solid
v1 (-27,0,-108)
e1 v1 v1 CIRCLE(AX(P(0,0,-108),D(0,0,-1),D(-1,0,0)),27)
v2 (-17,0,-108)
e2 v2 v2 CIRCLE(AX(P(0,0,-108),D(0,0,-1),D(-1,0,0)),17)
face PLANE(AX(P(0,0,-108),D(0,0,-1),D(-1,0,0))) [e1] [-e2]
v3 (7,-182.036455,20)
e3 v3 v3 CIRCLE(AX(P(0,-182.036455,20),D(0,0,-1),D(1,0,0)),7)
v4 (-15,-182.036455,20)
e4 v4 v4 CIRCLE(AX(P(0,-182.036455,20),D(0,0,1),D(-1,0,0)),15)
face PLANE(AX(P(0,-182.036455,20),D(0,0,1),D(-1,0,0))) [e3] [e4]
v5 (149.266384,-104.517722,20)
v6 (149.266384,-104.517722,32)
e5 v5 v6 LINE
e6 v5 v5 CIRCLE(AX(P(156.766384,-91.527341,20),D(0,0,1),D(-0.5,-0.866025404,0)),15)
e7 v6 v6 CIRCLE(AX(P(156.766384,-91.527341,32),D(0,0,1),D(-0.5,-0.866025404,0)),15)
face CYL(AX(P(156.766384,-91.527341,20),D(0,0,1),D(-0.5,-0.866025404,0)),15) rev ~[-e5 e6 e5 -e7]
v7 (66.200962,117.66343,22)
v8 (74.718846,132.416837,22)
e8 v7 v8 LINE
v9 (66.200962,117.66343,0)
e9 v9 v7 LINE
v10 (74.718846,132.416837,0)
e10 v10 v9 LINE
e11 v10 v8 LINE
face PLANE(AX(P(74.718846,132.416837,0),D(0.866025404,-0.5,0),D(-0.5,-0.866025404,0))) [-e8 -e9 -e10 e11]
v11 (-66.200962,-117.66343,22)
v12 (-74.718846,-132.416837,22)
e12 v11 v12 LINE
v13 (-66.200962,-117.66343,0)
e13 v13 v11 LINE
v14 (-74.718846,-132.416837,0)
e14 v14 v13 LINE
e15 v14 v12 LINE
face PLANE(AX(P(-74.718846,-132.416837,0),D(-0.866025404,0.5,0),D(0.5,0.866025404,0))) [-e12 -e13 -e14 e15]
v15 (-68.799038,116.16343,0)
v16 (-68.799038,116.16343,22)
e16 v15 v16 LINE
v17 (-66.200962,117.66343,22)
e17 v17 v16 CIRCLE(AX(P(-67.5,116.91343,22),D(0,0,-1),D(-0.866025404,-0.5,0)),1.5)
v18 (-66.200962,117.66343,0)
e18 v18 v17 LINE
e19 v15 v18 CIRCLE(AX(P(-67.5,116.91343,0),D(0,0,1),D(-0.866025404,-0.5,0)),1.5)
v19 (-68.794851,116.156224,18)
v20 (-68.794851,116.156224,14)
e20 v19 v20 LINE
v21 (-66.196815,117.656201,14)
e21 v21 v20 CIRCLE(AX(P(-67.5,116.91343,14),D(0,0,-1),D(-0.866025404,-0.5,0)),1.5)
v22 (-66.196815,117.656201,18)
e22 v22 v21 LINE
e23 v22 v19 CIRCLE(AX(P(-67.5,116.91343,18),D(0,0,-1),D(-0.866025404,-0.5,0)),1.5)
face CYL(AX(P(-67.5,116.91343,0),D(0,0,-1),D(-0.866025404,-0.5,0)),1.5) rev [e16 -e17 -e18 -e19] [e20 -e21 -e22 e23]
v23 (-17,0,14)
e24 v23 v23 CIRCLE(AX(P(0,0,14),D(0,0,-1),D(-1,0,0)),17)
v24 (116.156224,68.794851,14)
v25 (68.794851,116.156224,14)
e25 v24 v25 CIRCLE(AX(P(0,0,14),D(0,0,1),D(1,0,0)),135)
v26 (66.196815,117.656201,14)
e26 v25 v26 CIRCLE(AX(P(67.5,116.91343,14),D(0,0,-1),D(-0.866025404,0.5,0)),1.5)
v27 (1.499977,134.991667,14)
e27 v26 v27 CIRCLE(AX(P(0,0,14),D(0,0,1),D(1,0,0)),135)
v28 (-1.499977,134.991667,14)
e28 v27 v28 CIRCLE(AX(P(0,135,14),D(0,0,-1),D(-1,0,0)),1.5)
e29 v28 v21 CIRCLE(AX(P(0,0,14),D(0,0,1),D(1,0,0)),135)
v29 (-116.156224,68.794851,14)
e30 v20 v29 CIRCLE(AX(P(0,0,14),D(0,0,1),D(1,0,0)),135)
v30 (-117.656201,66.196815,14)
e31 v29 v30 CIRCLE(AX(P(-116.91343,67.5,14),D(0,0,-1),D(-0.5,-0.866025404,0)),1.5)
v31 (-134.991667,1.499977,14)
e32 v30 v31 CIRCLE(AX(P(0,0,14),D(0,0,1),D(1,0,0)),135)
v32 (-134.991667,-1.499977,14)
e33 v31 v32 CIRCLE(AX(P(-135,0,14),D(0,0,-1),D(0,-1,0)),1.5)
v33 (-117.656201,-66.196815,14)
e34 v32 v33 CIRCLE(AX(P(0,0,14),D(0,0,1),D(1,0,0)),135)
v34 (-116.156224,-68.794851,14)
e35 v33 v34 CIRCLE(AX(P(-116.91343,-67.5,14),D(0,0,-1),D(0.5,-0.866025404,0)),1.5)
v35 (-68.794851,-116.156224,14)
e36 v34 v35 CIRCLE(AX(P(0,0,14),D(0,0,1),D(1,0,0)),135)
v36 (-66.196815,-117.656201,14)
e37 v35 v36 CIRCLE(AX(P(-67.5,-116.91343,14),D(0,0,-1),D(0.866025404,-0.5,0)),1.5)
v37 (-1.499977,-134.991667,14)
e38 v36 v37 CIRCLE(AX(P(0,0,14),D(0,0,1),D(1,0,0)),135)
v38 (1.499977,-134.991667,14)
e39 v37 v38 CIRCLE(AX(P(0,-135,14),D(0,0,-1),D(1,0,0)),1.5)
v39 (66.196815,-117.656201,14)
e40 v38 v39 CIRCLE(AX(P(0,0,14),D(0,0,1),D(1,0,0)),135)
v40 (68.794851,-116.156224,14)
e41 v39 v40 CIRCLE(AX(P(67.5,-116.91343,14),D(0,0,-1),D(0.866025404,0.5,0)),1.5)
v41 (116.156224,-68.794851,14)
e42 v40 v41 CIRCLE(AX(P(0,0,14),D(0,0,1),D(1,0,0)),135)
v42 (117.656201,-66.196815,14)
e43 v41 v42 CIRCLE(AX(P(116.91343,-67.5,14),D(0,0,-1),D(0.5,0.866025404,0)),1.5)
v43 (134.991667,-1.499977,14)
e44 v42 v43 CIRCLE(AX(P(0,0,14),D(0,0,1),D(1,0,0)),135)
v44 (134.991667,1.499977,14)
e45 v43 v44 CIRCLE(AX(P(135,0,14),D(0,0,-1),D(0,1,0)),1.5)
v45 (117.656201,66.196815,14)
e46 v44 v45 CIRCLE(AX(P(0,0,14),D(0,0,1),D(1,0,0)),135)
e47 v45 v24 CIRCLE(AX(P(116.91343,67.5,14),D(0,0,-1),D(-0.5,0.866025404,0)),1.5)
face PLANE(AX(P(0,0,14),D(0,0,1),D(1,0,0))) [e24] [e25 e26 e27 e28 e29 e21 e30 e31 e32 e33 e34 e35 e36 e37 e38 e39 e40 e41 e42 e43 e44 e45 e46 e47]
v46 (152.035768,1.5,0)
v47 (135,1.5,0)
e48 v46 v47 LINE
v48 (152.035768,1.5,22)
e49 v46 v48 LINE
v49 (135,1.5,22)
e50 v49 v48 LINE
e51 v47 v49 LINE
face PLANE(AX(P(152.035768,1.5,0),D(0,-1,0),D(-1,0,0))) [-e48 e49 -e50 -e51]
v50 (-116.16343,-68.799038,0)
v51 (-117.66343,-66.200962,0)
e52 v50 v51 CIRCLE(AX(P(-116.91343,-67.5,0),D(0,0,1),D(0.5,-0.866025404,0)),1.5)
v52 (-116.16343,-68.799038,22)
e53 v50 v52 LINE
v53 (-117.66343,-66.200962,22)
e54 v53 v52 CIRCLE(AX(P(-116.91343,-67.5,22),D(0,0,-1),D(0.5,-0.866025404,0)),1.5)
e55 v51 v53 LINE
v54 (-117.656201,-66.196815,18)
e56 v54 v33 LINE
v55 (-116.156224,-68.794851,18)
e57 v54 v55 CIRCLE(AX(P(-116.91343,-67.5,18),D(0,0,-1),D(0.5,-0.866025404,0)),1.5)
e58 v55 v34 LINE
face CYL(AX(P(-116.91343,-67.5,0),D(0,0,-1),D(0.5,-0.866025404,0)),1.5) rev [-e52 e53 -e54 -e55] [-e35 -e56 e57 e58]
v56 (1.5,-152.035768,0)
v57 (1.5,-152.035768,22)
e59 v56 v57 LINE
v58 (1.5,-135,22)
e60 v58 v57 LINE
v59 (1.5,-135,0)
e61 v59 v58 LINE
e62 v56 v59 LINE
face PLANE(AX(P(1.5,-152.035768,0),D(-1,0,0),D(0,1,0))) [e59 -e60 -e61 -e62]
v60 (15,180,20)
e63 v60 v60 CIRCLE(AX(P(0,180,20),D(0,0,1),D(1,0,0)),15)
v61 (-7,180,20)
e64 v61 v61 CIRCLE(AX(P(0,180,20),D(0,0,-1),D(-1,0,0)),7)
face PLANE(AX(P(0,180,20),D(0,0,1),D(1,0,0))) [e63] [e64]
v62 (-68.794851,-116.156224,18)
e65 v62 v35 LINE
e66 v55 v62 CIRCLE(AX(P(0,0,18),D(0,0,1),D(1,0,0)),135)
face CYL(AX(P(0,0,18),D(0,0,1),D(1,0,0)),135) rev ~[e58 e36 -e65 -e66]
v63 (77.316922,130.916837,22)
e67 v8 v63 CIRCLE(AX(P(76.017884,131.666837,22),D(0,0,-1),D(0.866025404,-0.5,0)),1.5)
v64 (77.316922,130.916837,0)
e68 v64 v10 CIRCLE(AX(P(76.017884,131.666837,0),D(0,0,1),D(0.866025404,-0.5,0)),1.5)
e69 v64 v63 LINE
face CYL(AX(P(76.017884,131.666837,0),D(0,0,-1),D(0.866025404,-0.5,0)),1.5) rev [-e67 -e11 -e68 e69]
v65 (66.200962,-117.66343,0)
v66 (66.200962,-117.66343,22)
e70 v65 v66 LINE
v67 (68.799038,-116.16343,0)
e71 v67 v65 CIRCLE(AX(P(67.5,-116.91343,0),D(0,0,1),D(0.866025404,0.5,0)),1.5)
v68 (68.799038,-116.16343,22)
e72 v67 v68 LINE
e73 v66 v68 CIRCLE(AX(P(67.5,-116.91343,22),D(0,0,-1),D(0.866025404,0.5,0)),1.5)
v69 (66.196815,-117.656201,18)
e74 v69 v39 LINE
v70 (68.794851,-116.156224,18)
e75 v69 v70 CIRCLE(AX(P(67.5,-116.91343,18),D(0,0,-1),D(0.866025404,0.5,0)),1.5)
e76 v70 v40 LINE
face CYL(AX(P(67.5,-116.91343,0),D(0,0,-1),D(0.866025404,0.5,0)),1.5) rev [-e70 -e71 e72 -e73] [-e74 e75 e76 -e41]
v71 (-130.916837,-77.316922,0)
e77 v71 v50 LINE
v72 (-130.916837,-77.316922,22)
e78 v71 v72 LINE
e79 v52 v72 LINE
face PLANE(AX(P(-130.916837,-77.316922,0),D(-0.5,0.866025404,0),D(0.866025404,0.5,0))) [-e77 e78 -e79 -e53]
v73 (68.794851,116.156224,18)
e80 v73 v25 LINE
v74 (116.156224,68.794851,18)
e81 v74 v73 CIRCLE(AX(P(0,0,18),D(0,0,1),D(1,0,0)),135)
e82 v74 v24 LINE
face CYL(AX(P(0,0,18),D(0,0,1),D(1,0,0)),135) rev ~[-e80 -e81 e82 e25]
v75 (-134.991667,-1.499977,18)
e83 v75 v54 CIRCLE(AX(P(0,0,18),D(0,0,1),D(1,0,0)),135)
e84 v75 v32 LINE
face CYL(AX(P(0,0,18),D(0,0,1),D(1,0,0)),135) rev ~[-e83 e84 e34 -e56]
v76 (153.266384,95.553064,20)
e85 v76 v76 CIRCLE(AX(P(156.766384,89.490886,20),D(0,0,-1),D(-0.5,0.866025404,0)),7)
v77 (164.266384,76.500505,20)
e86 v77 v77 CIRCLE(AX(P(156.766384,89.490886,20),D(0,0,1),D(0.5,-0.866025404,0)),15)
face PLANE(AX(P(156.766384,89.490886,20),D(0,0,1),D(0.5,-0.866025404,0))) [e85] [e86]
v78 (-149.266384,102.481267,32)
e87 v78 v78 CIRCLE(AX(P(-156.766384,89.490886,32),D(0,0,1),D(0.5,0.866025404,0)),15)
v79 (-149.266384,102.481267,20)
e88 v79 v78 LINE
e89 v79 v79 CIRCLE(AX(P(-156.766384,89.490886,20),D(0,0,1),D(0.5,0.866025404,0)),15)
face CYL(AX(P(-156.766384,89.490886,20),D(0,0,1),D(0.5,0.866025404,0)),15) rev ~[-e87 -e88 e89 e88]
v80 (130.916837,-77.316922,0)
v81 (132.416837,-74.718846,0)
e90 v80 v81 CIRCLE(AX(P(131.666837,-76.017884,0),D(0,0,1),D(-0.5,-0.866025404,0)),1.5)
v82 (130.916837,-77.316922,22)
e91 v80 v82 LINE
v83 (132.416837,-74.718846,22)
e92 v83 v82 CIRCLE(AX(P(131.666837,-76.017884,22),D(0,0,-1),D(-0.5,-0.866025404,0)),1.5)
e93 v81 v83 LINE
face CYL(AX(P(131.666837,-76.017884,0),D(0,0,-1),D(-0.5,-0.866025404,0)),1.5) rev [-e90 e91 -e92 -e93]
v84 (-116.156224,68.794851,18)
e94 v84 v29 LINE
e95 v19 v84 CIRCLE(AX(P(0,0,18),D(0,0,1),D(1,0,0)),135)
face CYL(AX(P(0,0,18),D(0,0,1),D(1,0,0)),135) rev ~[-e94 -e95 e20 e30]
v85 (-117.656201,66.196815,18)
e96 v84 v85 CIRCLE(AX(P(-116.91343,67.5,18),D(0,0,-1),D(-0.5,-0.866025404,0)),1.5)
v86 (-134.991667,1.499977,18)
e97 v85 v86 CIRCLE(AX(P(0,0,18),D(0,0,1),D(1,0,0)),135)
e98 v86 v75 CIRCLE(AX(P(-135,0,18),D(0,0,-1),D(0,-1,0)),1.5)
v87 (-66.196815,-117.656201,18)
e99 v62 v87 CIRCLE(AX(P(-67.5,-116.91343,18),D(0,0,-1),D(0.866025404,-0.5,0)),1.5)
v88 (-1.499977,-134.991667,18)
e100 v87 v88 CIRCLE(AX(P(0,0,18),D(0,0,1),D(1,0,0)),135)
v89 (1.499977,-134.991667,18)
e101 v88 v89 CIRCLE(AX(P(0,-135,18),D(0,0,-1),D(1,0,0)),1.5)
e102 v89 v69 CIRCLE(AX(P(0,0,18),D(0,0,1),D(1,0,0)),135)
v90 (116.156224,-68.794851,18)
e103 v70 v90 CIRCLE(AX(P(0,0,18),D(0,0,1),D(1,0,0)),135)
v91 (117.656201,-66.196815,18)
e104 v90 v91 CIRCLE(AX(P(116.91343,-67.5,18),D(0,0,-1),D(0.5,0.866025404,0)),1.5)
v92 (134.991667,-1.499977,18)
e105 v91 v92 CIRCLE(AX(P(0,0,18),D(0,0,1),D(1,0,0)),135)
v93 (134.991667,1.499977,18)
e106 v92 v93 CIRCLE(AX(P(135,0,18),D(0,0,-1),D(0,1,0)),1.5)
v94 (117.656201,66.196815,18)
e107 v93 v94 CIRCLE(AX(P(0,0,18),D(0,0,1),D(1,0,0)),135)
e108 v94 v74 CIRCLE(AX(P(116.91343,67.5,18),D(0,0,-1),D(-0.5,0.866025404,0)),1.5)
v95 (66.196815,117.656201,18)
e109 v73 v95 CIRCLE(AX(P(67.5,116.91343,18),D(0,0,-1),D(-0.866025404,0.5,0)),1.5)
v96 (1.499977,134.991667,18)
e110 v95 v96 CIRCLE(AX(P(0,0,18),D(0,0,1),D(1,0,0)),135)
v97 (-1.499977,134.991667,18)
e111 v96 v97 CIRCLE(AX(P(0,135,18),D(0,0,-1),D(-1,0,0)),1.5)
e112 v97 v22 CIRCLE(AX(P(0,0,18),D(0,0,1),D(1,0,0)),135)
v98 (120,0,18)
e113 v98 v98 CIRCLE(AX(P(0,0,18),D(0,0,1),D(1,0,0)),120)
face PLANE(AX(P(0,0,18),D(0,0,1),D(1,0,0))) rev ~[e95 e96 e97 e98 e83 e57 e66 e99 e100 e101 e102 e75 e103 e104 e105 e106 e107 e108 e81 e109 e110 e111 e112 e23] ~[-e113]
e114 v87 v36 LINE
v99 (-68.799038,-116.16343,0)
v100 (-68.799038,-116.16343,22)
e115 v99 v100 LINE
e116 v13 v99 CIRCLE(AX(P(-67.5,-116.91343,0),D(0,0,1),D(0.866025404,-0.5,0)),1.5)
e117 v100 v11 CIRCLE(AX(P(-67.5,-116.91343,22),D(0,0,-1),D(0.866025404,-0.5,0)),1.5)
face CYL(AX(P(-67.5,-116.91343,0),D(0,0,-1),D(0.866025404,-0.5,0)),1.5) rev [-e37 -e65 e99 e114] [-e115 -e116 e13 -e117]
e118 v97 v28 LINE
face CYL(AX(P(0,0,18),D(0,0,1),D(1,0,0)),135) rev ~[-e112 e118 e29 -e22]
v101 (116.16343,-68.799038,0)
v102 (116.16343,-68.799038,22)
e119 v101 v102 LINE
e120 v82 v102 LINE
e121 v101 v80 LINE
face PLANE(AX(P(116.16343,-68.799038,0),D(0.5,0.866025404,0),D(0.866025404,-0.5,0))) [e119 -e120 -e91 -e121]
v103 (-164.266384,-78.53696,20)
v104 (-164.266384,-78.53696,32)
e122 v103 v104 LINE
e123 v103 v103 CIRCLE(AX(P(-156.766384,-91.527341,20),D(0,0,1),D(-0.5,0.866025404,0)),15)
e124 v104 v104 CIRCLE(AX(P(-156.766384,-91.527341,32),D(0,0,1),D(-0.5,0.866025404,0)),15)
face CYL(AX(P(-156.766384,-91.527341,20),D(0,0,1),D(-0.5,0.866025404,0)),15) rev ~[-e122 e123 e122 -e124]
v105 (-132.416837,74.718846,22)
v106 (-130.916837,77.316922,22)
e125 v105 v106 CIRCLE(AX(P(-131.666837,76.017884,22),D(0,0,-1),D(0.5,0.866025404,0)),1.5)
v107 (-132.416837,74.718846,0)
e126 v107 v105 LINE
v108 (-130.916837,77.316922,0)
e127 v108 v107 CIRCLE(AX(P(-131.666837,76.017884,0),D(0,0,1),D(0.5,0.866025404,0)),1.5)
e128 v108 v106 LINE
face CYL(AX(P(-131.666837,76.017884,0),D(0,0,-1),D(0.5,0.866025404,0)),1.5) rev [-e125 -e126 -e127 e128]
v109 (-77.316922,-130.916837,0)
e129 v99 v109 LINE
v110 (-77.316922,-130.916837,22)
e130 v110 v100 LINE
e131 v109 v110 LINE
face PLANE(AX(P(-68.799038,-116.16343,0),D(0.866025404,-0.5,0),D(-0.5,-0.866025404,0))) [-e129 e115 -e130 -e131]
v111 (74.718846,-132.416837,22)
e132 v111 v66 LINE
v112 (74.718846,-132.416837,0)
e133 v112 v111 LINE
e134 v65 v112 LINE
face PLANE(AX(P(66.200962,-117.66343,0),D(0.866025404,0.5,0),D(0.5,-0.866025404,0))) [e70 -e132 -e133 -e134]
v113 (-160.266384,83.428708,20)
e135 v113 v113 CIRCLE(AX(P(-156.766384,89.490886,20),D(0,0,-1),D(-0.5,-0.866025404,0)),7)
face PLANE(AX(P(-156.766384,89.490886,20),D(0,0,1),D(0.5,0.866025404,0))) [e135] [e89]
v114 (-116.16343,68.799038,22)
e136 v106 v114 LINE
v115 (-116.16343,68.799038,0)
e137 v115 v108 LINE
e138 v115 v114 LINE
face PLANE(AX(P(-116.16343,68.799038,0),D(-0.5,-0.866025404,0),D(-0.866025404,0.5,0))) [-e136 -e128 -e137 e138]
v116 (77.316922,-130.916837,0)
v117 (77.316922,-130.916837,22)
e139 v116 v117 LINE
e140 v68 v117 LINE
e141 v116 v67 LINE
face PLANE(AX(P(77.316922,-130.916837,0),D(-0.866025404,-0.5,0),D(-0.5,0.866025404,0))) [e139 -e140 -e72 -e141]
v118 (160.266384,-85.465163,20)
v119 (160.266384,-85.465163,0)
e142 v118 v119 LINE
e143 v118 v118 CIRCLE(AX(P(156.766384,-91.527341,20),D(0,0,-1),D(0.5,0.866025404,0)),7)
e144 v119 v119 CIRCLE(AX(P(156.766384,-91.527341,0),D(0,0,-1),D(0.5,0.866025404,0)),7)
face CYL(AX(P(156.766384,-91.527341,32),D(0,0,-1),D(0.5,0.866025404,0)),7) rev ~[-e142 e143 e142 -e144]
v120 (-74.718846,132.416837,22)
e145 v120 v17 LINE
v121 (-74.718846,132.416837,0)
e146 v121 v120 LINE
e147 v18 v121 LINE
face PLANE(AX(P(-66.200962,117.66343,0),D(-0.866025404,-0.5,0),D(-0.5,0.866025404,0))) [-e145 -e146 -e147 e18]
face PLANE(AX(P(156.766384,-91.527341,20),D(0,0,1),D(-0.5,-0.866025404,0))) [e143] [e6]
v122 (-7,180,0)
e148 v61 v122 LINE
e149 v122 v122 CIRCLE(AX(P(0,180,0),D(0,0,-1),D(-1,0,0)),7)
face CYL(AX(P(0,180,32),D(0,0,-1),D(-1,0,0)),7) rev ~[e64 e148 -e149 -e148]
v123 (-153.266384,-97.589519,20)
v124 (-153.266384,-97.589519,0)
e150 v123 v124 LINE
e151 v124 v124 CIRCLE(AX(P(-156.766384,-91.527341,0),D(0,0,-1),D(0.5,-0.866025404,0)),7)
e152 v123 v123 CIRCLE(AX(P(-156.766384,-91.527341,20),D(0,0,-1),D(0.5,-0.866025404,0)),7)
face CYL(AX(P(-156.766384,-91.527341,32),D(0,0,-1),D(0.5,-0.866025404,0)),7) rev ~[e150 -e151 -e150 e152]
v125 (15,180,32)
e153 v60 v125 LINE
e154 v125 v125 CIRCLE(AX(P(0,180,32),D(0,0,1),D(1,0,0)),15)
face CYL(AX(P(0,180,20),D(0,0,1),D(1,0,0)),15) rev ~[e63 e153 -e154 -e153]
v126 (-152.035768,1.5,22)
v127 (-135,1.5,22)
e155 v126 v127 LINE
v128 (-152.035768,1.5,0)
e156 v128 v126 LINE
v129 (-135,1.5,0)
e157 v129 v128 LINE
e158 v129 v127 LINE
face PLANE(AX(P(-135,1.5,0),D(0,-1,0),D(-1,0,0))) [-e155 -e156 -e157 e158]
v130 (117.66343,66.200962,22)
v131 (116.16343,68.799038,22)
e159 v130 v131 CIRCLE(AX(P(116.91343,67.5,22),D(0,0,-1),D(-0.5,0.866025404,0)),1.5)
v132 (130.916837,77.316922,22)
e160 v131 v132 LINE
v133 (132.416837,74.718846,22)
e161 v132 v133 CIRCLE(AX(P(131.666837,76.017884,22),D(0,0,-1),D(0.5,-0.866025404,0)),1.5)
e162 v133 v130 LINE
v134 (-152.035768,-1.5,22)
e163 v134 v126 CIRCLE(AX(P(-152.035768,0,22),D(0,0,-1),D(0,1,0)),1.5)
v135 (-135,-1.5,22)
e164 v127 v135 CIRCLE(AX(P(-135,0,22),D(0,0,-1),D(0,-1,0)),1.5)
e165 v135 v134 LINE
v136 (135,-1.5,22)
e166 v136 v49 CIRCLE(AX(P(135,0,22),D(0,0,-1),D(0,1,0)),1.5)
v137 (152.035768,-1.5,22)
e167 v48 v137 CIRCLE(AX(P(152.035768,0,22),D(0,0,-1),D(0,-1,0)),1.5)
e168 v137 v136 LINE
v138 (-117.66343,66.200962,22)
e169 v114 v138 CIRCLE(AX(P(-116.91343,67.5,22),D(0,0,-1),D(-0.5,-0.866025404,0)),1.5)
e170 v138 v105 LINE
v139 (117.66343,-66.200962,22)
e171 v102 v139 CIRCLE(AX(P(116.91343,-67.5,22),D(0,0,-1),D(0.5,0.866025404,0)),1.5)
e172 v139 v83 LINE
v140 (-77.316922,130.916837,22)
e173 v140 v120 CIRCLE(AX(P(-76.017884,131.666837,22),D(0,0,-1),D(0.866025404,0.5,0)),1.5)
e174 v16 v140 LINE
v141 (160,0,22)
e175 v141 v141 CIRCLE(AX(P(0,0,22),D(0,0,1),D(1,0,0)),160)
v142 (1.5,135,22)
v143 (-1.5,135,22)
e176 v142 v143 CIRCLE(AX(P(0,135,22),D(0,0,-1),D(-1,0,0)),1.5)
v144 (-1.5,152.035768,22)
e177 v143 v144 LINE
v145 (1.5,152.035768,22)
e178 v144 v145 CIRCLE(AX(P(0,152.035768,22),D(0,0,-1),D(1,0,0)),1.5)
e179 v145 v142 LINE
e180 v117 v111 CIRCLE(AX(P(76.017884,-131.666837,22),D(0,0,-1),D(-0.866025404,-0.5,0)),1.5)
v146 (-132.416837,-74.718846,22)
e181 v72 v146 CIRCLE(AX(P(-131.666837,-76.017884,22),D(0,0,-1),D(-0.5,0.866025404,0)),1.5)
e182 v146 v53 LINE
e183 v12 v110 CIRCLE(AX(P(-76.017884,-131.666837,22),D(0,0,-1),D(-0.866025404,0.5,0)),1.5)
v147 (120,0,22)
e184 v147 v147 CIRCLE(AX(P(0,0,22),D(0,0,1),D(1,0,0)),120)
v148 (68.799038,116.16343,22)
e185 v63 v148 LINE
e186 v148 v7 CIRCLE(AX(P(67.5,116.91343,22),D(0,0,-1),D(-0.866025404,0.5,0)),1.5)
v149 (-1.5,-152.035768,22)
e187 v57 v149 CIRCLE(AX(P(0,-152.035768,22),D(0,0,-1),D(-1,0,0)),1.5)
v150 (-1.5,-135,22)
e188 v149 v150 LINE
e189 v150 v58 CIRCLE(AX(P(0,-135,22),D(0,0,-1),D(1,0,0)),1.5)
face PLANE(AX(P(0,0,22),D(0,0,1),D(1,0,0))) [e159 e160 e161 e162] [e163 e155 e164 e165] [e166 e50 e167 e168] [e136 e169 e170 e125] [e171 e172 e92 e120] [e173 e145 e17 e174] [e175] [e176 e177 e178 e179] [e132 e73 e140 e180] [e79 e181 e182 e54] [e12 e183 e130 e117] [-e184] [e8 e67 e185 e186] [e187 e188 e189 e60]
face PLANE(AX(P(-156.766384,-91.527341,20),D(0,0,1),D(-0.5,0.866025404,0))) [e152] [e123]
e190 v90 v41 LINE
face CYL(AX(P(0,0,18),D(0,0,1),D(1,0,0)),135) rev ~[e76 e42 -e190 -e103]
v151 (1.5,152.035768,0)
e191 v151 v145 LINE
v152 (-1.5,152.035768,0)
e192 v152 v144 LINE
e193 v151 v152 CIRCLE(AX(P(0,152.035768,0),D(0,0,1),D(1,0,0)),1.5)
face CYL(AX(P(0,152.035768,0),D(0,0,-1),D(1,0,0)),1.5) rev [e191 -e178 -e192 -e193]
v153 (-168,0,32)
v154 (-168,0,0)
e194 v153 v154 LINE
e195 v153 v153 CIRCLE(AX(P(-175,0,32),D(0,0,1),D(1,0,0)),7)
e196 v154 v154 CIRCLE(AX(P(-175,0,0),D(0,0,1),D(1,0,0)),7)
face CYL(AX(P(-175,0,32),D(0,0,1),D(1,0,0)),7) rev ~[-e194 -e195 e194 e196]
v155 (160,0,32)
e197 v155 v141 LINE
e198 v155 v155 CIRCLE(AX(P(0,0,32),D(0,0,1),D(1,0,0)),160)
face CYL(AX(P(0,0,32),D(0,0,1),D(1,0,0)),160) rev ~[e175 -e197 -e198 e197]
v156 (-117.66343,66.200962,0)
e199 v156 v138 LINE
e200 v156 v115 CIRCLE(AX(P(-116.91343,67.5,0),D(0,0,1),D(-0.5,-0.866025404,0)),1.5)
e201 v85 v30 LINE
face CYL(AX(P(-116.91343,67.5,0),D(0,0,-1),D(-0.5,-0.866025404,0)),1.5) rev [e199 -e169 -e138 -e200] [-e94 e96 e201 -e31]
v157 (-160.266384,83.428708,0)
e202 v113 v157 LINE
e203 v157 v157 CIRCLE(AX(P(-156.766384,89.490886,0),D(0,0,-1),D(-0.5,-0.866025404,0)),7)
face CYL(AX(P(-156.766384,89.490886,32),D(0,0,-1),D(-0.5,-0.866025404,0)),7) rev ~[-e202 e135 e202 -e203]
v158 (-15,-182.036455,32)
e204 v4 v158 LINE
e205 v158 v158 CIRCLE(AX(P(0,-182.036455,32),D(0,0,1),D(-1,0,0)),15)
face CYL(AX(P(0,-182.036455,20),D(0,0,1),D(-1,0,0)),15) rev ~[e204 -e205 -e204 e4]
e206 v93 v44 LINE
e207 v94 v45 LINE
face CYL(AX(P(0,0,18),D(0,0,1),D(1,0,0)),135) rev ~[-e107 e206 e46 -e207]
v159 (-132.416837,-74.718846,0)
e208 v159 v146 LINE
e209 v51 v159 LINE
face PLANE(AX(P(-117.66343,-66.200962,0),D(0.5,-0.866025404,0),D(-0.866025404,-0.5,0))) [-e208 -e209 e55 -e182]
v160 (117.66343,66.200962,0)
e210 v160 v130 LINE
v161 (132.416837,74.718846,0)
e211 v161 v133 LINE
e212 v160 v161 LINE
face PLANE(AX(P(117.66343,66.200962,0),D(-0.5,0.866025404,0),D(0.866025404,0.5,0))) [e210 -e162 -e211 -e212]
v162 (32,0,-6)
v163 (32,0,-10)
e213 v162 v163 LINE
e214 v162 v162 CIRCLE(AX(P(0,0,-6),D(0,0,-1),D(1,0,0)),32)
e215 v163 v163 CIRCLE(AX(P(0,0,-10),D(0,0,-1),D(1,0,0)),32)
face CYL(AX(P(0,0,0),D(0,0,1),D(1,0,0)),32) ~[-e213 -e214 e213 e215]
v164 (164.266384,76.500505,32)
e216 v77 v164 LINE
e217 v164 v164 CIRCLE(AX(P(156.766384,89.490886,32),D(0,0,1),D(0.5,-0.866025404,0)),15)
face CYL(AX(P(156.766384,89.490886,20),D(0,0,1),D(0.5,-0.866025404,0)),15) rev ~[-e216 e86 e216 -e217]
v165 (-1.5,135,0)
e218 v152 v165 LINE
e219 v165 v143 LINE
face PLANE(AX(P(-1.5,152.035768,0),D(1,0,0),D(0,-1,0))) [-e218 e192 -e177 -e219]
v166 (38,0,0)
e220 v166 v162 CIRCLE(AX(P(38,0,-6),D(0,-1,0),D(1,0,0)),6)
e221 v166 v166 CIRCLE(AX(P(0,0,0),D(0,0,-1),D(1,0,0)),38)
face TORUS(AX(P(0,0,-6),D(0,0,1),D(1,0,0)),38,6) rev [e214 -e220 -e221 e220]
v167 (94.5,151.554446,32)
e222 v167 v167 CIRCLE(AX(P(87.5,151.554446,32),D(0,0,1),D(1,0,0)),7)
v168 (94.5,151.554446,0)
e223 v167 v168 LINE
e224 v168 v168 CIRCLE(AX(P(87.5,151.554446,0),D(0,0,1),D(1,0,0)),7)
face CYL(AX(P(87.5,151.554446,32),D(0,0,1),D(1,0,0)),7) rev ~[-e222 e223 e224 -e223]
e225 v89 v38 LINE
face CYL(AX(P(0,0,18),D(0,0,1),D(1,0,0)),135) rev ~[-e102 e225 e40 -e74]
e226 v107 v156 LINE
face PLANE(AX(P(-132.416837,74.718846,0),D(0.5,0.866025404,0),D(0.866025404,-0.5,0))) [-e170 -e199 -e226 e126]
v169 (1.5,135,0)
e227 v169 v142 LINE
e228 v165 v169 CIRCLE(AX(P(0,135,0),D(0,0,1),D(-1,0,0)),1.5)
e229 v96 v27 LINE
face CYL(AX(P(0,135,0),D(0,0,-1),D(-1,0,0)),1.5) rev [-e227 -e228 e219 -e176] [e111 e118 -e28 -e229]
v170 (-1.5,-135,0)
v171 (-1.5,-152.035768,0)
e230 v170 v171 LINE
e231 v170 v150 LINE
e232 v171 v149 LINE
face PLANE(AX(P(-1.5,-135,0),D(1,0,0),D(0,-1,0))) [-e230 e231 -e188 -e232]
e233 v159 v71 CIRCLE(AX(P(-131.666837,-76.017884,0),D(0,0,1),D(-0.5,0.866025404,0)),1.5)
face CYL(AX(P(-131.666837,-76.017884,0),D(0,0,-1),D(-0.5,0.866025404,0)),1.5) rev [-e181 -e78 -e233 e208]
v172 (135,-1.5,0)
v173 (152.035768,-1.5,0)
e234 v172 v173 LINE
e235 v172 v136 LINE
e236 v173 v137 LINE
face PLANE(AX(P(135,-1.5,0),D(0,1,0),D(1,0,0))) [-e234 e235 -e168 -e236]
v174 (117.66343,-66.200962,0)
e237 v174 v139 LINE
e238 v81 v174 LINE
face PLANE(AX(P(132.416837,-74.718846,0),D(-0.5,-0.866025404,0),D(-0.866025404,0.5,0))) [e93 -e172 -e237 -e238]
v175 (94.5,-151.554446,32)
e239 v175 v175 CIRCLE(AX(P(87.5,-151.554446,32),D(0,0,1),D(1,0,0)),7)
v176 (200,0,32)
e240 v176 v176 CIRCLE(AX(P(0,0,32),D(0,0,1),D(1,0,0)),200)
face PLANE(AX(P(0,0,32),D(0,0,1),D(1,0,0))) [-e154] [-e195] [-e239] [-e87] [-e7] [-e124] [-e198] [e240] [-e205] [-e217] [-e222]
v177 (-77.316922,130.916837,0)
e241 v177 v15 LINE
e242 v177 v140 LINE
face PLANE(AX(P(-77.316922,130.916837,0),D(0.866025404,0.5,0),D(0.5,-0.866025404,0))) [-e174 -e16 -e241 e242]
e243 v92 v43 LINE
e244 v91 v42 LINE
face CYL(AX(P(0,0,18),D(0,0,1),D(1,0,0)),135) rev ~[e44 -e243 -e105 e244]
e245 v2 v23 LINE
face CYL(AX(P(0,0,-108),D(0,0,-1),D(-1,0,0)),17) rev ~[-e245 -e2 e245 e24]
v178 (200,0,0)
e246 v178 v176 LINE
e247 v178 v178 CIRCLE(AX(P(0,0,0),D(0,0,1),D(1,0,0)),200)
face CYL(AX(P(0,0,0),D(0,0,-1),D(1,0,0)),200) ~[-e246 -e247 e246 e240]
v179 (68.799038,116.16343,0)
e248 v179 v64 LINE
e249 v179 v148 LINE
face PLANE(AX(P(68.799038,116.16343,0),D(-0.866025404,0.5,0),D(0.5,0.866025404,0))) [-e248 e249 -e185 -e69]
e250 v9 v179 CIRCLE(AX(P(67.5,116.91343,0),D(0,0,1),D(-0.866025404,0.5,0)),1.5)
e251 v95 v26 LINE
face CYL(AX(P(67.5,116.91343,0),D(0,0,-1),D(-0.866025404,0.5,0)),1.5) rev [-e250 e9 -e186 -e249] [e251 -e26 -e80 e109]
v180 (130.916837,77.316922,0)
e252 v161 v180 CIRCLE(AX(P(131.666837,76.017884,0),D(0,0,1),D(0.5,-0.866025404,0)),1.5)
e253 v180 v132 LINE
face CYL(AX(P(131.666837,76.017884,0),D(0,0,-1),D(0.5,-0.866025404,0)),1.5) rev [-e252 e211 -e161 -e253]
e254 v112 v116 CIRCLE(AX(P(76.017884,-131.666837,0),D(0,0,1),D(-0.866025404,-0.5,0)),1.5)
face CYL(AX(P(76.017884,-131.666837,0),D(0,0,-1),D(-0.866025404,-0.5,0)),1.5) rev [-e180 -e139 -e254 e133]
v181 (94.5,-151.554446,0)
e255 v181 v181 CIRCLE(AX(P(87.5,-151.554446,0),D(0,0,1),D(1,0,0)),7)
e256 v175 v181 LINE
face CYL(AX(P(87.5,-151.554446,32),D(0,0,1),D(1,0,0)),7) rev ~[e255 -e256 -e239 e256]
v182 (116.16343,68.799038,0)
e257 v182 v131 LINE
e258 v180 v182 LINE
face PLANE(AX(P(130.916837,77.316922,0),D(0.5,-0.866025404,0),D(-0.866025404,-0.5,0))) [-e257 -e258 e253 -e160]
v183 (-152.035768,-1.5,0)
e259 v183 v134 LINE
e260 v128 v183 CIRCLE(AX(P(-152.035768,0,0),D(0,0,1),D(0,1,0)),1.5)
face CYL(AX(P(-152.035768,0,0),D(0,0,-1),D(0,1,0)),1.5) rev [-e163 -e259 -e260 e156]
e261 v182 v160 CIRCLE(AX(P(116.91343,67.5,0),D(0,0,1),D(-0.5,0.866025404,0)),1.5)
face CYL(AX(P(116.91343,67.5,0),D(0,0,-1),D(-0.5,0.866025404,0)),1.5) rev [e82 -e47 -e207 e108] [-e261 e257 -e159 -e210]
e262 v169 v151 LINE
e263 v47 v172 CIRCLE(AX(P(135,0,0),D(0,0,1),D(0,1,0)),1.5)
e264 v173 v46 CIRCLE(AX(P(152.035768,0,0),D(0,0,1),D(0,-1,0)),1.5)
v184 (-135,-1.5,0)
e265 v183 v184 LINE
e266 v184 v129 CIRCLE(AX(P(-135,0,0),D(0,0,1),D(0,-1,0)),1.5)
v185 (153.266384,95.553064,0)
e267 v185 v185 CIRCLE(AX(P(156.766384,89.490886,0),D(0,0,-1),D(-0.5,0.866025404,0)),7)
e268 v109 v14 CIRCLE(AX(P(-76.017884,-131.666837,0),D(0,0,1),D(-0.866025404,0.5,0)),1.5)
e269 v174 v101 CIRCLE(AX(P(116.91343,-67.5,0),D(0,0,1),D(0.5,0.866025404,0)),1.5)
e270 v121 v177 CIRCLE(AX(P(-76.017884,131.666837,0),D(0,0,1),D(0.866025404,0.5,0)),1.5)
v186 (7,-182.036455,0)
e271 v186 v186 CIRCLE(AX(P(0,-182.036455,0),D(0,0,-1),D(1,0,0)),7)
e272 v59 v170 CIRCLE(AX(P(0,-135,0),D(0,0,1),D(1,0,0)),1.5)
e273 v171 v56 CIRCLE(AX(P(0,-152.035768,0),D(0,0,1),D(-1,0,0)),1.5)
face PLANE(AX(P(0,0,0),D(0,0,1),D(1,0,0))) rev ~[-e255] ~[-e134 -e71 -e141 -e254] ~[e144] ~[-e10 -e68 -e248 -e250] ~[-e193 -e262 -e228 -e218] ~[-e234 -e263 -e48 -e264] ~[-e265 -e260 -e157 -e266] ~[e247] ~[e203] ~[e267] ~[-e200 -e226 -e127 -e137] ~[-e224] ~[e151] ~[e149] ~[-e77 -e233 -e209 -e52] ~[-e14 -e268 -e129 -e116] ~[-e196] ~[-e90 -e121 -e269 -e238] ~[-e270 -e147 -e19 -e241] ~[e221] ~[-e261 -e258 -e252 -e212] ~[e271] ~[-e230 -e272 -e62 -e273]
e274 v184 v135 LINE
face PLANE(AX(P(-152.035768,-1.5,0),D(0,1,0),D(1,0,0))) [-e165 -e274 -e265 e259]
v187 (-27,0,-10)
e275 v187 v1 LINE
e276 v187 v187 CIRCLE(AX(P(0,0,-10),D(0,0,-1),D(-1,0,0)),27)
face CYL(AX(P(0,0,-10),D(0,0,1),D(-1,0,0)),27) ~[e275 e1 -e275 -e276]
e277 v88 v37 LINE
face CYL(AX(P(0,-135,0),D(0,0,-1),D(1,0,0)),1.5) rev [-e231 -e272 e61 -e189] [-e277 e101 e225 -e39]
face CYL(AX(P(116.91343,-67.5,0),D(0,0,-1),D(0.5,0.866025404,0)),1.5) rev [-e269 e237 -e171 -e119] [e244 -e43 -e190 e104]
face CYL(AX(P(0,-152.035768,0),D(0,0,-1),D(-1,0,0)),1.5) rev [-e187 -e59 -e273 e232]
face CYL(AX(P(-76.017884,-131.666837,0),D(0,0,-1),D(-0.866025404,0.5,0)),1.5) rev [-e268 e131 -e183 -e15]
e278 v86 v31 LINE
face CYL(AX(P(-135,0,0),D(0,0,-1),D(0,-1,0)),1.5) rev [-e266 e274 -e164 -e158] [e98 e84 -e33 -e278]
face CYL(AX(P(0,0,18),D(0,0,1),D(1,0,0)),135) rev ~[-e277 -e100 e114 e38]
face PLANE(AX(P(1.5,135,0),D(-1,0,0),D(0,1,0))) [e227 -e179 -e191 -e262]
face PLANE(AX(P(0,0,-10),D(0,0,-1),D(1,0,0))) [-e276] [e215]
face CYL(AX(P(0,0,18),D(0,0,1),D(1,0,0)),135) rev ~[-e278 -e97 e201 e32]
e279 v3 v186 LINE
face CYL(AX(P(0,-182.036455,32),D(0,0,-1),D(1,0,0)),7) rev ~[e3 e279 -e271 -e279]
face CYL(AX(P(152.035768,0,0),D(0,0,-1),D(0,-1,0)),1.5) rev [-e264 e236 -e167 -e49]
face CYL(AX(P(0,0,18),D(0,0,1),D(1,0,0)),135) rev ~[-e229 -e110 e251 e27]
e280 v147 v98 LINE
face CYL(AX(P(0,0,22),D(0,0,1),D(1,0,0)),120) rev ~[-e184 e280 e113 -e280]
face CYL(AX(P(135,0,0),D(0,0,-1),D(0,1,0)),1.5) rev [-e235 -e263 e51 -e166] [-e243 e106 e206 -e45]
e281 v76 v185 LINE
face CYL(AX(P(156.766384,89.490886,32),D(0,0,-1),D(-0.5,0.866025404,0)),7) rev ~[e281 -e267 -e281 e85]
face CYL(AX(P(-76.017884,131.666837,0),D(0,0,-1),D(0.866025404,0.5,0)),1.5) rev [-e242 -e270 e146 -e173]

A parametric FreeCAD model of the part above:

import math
import FreeCAD as App
import Part
import Sketcher
Q = App.Units.Quantity


def edges_at(feature, points):
    """Names of the edges that pass closest to the given points."""
    edges = feature.Shape.Edges
    near = lambda p: min(range(len(edges)), key=lambda i: edges[i].distToShape(Part.Vertex(*p))[0])
    return sorted({f"Edge{near(p) + 1}" for p in points})

doc = App.newDocument("Part")
body = doc.addObject("PartDesign::Body", "Body")

sketch1 = body.newObject("Sketcher::SketchObject", "Sketch")
sketch1.AttachmentSupport = (doc.getObject("XY_Plane"), [""])
sketch1.MapMode = "FlatFace"
sketch1.addGeometry(Part.Circle(App.Vector(0, 0, 0), App.Vector(0, 0, 1), 200), False)
sketch1.addConstraint(Sketcher.Constraint("Coincident", 0, 3, -1, 1))
sketch1.addConstraint(Sketcher.Constraint("Diameter", 0, Q("400 mm")))
pad1 = body.newObject("PartDesign::Pad", "Pad")
pad1.Profile = sketch1
pad1.Length = 32

sketch2 = body.newObject("Sketcher::SketchObject", "Sketch001")
sketch2.AttachmentSupport = (doc.getObject("XY_Plane"), [""])
sketch2.MapMode = "FlatFace"
sketch2.AttachmentOffset = App.Placement(App.Vector(0, 0, 32), App.Rotation())
sketch2.addGeometry(Part.Circle(App.Vector(0, 180, 0), App.Vector(0, 0, 1), 7), False)
sketch2.addConstraint(Sketcher.Constraint("PointOnObject", 0, 3, -2))
sketch2.addConstraint(Sketcher.Constraint("Diameter", 0, Q("14 mm")))
sketch2.addConstraint(Sketcher.Constraint("DistanceY", -1, 1, 0, 3, Q("180 mm")))
doc.recompute()
hole = body.newObject("PartDesign::Hole", "Hole")
hole.Profile = sketch2
hole.ThreadType = "None"
hole.Diameter = 14
hole.DepthType = "ThroughAll"
hole.HoleCutType = "Counterbore"
hole.HoleCutDiameter = 30
hole.HoleCutDepth = 12
doc.recompute()

datumline = body.newObject("PartDesign::Line", "DatumLine")
datumline.Placement = App.Placement(App.Vector(0, -1.018228, 0), App.Rotation(App.Vector(0, 0, 1), App.Vector(0, 0, 1)))
polarpattern = body.newObject("PartDesign::PolarPattern", "PolarPattern")
polarpattern.Originals = [hole]
polarpattern.Axis = (datumline, [""])
polarpattern.Angle = 360
polarpattern.Occurrences = 6
body.Tip = polarpattern

sketch3 = body.newObject("Sketcher::SketchObject", "Sketch002")
sketch3.AttachmentSupport = (doc.getObject("XY_Plane"), [""])
sketch3.MapMode = "FlatFace"
sketch3.AttachmentOffset = App.Placement(App.Vector(0, 0, 32), App.Rotation())
sketch3.addGeometry(Part.Circle(App.Vector(-175, 0, 0), App.Vector(0, 0, 1), 7), False)
sketch3.addGeometry(Part.Circle(App.Vector(88, 152, 0), App.Vector(0, 0, 1), 7), False)
sketch3.addGeometry(Part.Circle(App.Vector(88, -152, 0), App.Vector(0, 0, 1), 7), False)
sketch3.addConstraint(Sketcher.Constraint("Equal", 0, 1))
sketch3.addConstraint(Sketcher.Constraint("Equal", 1, 2))
sketch3.addConstraint(Sketcher.Constraint("Symmetric", 1, 3, 2, 3, -1))
sketch3.addConstraint(Sketcher.Constraint("PointOnObject", 0, 3, -1))
sketch3.addConstraint(Sketcher.Constraint("Diameter", 0, Q("14 mm")))
sketch3.addConstraint(Sketcher.Constraint("DistanceX", 0, 3, -1, 1, Q("175 mm")))
sketch3.addConstraint(Sketcher.Constraint("DistanceX", -1, 1, 1, 3, Q("87.5 mm")))
sketch3.addConstraint(Sketcher.Constraint("DistanceY", 2, 3, 1, 3, Q("303.108891 mm")))
pocket1 = body.newObject("PartDesign::Pocket", "Pocket")
pocket1.Profile = sketch3
pocket1.Type = "ThroughAll"

sketch4 = body.newObject("Sketcher::SketchObject", "Sketch003")
sketch4.AttachmentSupport = (doc.getObject("XY_Plane"), [""])
sketch4.MapMode = "FlatFace"
sketch4.AttachmentOffset = App.Placement(App.Vector(0, 0, 32), App.Rotation())
sketch4.addGeometry(Part.Circle(App.Vector(0, 0, 0), App.Vector(0, 0, 1), 160), False)
sketch4.addConstraint(Sketcher.Constraint("Coincident", 0, 3, -1, 1))
sketch4.addConstraint(Sketcher.Constraint("Diameter", 0, Q("320 mm")))
pocket2 = body.newObject("PartDesign::Pocket", "Pocket001")
pocket2.Profile = sketch4
pocket2.Length = 10

sketch5 = body.newObject("Sketcher::SketchObject", "Sketch004")
sketch5.AttachmentSupport = (doc.getObject("XY_Plane"), [""])
sketch5.MapMode = "FlatFace"
sketch5.AttachmentOffset = App.Placement(App.Vector(0, 0, 22), App.Rotation())
sketch5.addGeometry(Part.Circle(App.Vector(0, 0, 0), App.Vector(0, 0, 1), 120), False)
sketch5.addConstraint(Sketcher.Constraint("Coincident", 0, 3, -1, 1))
sketch5.addConstraint(Sketcher.Constraint("Diameter", 0, Q("240 mm")))
pocket3 = body.newObject("PartDesign::Pocket", "Pocket002")
pocket3.Profile = sketch5
pocket3.Length = 4

sketch6 = body.newObject("Sketcher::SketchObject", "Sketch005")
sketch6.AttachmentSupport = (doc.getObject("XY_Plane"), [""])
sketch6.MapMode = "FlatFace"
sketch6.addGeometry(Part.LineSegment(App.Vector(-1.5, -152, 0), App.Vector(-1.5, -135, 0)), False)
sketch6.addGeometry(Part.ArcOfCircle(Part.Circle(App.Vector(0, -135, 0), App.Vector(0, 0, 1), 1.5), math.radians(0), math.radians(180)), False)
sketch6.addGeometry(Part.LineSegment(App.Vector(1.5, -135, 0), App.Vector(1.5, -152, 0)), False)
sketch6.addGeometry(Part.ArcOfCircle(Part.Circle(App.Vector(0, -152, 0), App.Vector(0, 0, 1), 1.5), math.radians(180), math.radians(360)), False)
sketch6.addGeometry(Part.LineSegment(App.Vector(74.7, -132.4, 0), App.Vector(66.2, -117.7, 0)), False)
sketch6.addGeometry(Part.ArcOfCircle(Part.Circle(App.Vector(67.5, -116.9, 0), App.Vector(0, 0, 1), 1.5), math.radians(30), math.radians(210)), False)
sketch6.addGeometry(Part.LineSegment(App.Vector(68.8, -116.2, 0), App.Vector(77.3, -130.9, 0)), False)
sketch6.addGeometry(Part.ArcOfCircle(Part.Circle(App.Vector(76, -131.7, 0), App.Vector(0, 0, 1), 1.5), math.radians(-150), math.radians(30)), False)
sketch6.addGeometry(Part.LineSegment(App.Vector(130.9, -77.3, 0), App.Vector(116.2, -68.8, 0)), False)
sketch6.addGeometry(Part.ArcOfCircle(Part.Circle(App.Vector(116.9, -67.5, 0), App.Vector(0, 0, 1), 1.5), math.radians(60), math.radians(240)), False)
sketch6.addGeometry(Part.LineSegment(App.Vector(117.7, -66.2, 0), App.Vector(132.4, -74.7, 0)), False)
sketch6.addGeometry(Part.ArcOfCircle(Part.Circle(App.Vector(131.7, -76, 0), App.Vector(0, 0, 1), 1.5), math.radians(-120), math.radians(60)), False)
sketch6.addGeometry(Part.LineSegment(App.Vector(152, -1.5, 0), App.Vector(135, -1.5, 0)), False)
sketch6.addGeometry(Part.ArcOfCircle(Part.Circle(App.Vector(135, 0, 0), App.Vector(0, 0, 1), 1.5), math.radians(90), math.radians(270)), False)
sketch6.addGeometry(Part.LineSegment(App.Vector(135, 1.5, 0), App.Vector(152, 1.5, 0)), False)
sketch6.addGeometry(Part.ArcOfCircle(Part.Circle(App.Vector(152, 0, 0), App.Vector(0, 0, 1), 1.5), math.radians(-90), math.radians(90)), False)
sketch6.addGeometry(Part.LineSegment(App.Vector(132.4, 74.7, 0), App.Vector(117.7, 66.2, 0)), False)
sketch6.addGeometry(Part.ArcOfCircle(Part.Circle(App.Vector(116.9, 67.5, 0), App.Vector(0, 0, 1), 1.5), math.radians(120), math.radians(300)), False)
sketch6.addGeometry(Part.LineSegment(App.Vector(116.2, 68.8, 0), App.Vector(130.9, 77.3, 0)), False)
sketch6.addGeometry(Part.ArcOfCircle(Part.Circle(App.Vector(131.7, 76, 0), App.Vector(0, 0, 1), 1.5), math.radians(-60), math.radians(120)), False)
sketch6.addGeometry(Part.LineSegment(App.Vector(77.3, 130.9, 0), App.Vector(68.8, 116.2, 0)), False)
sketch6.addGeometry(Part.ArcOfCircle(Part.Circle(App.Vector(67.5, 116.9, 0), App.Vector(0, 0, 1), 1.5), math.radians(150), math.radians(330)), False)
sketch6.addGeometry(Part.LineSegment(App.Vector(66.2, 117.7, 0), App.Vector(74.7, 132.4, 0)), False)
sketch6.addGeometry(Part.ArcOfCircle(Part.Circle(App.Vector(76, 131.7, 0), App.Vector(0, 0, 1), 1.5), math.radians(-30), math.radians(150)), False)
sketch6.addGeometry(Part.LineSegment(App.Vector(1.5, 152, 0), App.Vector(1.5, 135, 0)), False)
sketch6.addGeometry(Part.ArcOfCircle(Part.Circle(App.Vector(0, 135, 0), App.Vector(0, 0, 1), 1.5), math.radians(180), math.radians(360)), False)
sketch6.addGeometry(Part.LineSegment(App.Vector(-1.5, 135, 0), App.Vector(-1.5, 152, 0)), False)
sketch6.addGeometry(Part.ArcOfCircle(Part.Circle(App.Vector(0, 152, 0), App.Vector(0, 0, 1), 1.5), math.radians(0), math.radians(180)), False)
sketch6.addGeometry(Part.LineSegment(App.Vector(-74.7, 132.4, 0), App.Vector(-66.2, 117.7, 0)), False)
sketch6.addGeometry(Part.ArcOfCircle(Part.Circle(App.Vector(-67.5, 116.9, 0), App.Vector(0, 0, 1), 1.5), math.radians(-150), math.radians(30)), False)
sketch6.addGeometry(Part.LineSegment(App.Vector(-68.8, 116.2, 0), App.Vector(-77.3, 130.9, 0)), False)
sketch6.addGeometry(Part.ArcOfCircle(Part.Circle(App.Vector(-76, 131.7, 0), App.Vector(0, 0, 1), 1.5), math.radians(30), math.radians(210)), False)
sketch6.addGeometry(Part.LineSegment(App.Vector(-130.9, 77.3, 0), App.Vector(-116.2, 68.8, 0)), False)
sketch6.addGeometry(Part.ArcOfCircle(Part.Circle(App.Vector(-116.9, 67.5, 0), App.Vector(0, 0, 1), 1.5), math.radians(-120), math.radians(60)), False)
sketch6.addGeometry(Part.LineSegment(App.Vector(-117.7, 66.2, 0), App.Vector(-132.4, 74.7, 0)), False)
sketch6.addGeometry(Part.ArcOfCircle(Part.Circle(App.Vector(-131.7, 76, 0), App.Vector(0, 0, 1), 1.5), math.radians(60), math.radians(240)), False)
sketch6.addGeometry(Part.LineSegment(App.Vector(-152, 1.5, 0), App.Vector(-135, 1.5, 0)), False)
sketch6.addGeometry(Part.ArcOfCircle(Part.Circle(App.Vector(-135, 0, 0), App.Vector(0, 0, 1), 1.5), math.radians(-90), math.radians(90)), False)
sketch6.addGeometry(Part.LineSegment(App.Vector(-135, -1.5, 0), App.Vector(-152, -1.5, 0)), False)
sketch6.addGeometry(Part.ArcOfCircle(Part.Circle(App.Vector(-152, 0, 0), App.Vector(0, 0, 1), 1.5), math.radians(90), math.radians(270)), False)
sketch6.addGeometry(Part.LineSegment(App.Vector(-132.4, -74.7, 0), App.Vector(-117.7, -66.2, 0)), False)
sketch6.addGeometry(Part.ArcOfCircle(Part.Circle(App.Vector(-116.9, -67.5, 0), App.Vector(0, 0, 1), 1.5), math.radians(-60), math.radians(120)), False)
sketch6.addGeometry(Part.LineSegment(App.Vector(-116.2, -68.8, 0), App.Vector(-130.9, -77.3, 0)), False)
sketch6.addGeometry(Part.ArcOfCircle(Part.Circle(App.Vector(-131.7, -76, 0), App.Vector(0, 0, 1), 1.5), math.radians(120), math.radians(300)), False)
sketch6.addGeometry(Part.LineSegment(App.Vector(-77.3, -130.9, 0), App.Vector(-68.8, -116.2, 0)), False)
sketch6.addGeometry(Part.ArcOfCircle(Part.Circle(App.Vector(-67.5, -116.9, 0), App.Vector(0, 0, 1), 1.5), math.radians(-30), math.radians(150)), False)
sketch6.addGeometry(Part.LineSegment(App.Vector(-66.2, -117.7, 0), App.Vector(-74.7, -132.4, 0)), False)
sketch6.addGeometry(Part.ArcOfCircle(Part.Circle(App.Vector(-76, -131.7, 0), App.Vector(0, 0, 1), 1.5), math.radians(150), math.radians(330)), False)
sketch6.addConstraint(Sketcher.Constraint("Tangent", 0, 2, 1, 2))
sketch6.addConstraint(Sketcher.Constraint("Tangent", 1, 1, 2, 1))
sketch6.addConstraint(Sketcher.Constraint("Tangent", 2, 2, 3, 2))
sketch6.addConstraint(Sketcher.Constraint("Tangent", 3, 1, 0, 1))
sketch6.addConstraint(Sketcher.Constraint("Tangent", 4, 2, 5, 2))
sketch6.addConstraint(Sketcher.Constraint("Tangent", 5, 1, 6, 1))
sketch6.addConstraint(Sketcher.Constraint("Tangent", 6, 2, 7, 2))
sketch6.addConstraint(Sketcher.Constraint("Tangent", 7, 1, 4, 1))
sketch6.addConstraint(Sketcher.Constraint("Tangent", 8, 2, 9, 2))
sketch6.addConstraint(Sketcher.Constraint("Tangent", 9, 1, 10, 1))
sketch6.addConstraint(Sketcher.Constraint("Tangent", 10, 2, 11, 2))
sketch6.addConstraint(Sketcher.Constraint("Tangent", 11, 1, 8, 1))
sketch6.addConstraint(Sketcher.Constraint("Tangent", 12, 2, 13, 2))
sketch6.addConstraint(Sketcher.Constraint("Tangent", 13, 1, 14, 1))
sketch6.addConstraint(Sketcher.Constraint("Tangent", 14, 2, 15, 2))
sketch6.addConstraint(Sketcher.Constraint("Tangent", 15, 1, 12, 1))
sketch6.addConstraint(Sketcher.Constraint("Tangent", 16, 2, 17, 2))
sketch6.addConstraint(Sketcher.Constraint("Tangent", 17, 1, 18, 1))
sketch6.addConstraint(Sketcher.Constraint("Tangent", 18, 2, 19, 2))
sketch6.addConstraint(Sketcher.Constraint("Tangent", 19, 1, 16, 1))
sketch6.addConstraint(Sketcher.Constraint("Tangent", 20, 2, 21, 2))
sketch6.addConstraint(Sketcher.Constraint("Tangent", 21, 1, 22, 1))
sketch6.addConstraint(Sketcher.Constraint("Tangent", 22, 2, 23, 2))
sketch6.addConstraint(Sketcher.Constraint("Tangent", 23, 1, 20, 1))
sketch6.addConstraint(Sketcher.Constraint("Tangent", 24, 2, 25, 2))
sketch6.addConstraint(Sketcher.Constraint("Tangent", 25, 1, 26, 1))
sketch6.addConstraint(Sketcher.Constraint("Tangent", 26, 2, 27, 2))
sketch6.addConstraint(Sketcher.Constraint("Tangent", 27, 1, 24, 1))
sketch6.addConstraint(Sketcher.Constraint("Tangent", 28, 2, 29, 2))
sketch6.addConstraint(Sketcher.Constraint("Tangent", 29, 1, 30, 1))
sketch6.addConstraint(Sketcher.Constraint("Tangent", 30, 2, 31, 2))
sketch6.addConstraint(Sketcher.Constraint("Tangent", 31, 1, 28, 1))
sketch6.addConstraint(Sketcher.Constraint("Tangent", 32, 2, 33, 2))
sketch6.addConstraint(Sketcher.Constraint("Tangent", 33, 1, 34, 1))
sketch6.addConstraint(Sketcher.Constraint("Tangent", 34, 2, 35, 2))
sketch6.addConstraint(Sketcher.Constraint("Tangent", 35, 1, 32, 1))
sketch6.addConstraint(Sketcher.Constraint("Tangent", 36, 2, 37, 2))
sketch6.addConstraint(Sketcher.Constraint("Tangent", 37, 1, 38, 1))
sketch6.addConstraint(Sketcher.Constraint("Tangent", 38, 2, 39, 2))
sketch6.addConstraint(Sketcher.Constraint("Tangent", 39, 1, 36, 1))
sketch6.addConstraint(Sketcher.Constraint("Tangent", 40, 2, 41, 2))
sketch6.addConstraint(Sketcher.Constraint("Tangent", 41, 1, 42, 1))
sketch6.addConstraint(Sketcher.Constraint("Tangent", 42, 2, 43, 2))
sketch6.addConstraint(Sketcher.Constraint("Tangent", 43, 1, 40, 1))
sketch6.addConstraint(Sketcher.Constraint("Tangent", 44, 2, 45, 2))
sketch6.addConstraint(Sketcher.Constraint("Tangent", 45, 1, 46, 1))
sketch6.addConstraint(Sketcher.Constraint("Tangent", 46, 2, 47, 2))
sketch6.addConstraint(Sketcher.Constraint("Tangent", 47, 1, 44, 1))
sketch6.addConstraint(Sketcher.Constraint("Vertical", 0))
sketch6.addConstraint(Sketcher.Constraint("Vertical", 2))
sketch6.addConstraint(Sketcher.Constraint("Horizontal", 12))
sketch6.addConstraint(Sketcher.Constraint("Horizontal", 14))
sketch6.addConstraint(Sketcher.Constraint("Vertical", 24))
sketch6.addConstraint(Sketcher.Constraint("Vertical", 26))
sketch6.addConstraint(Sketcher.Constraint("Horizontal", 36))
sketch6.addConstraint(Sketcher.Constraint("Horizontal", 38))
sketch6.addConstraint(Sketcher.Constraint("Equal", 3, 5))
sketch6.addConstraint(Sketcher.Constraint("Equal", 5, 7))
sketch6.addConstraint(Sketcher.Constraint("Equal", 7, 9))
sketch6.addConstraint(Sketcher.Constraint("Equal", 9, 11))
sketch6.addConstraint(Sketcher.Constraint("Equal", 11, 13))
sketch6.addConstraint(Sketcher.Constraint("Equal", 15, 17))
sketch6.addConstraint(Sketcher.Constraint("Equal", 17, 19))
sketch6.addConstraint(Sketcher.Constraint("Equal", 19, 21))
sketch6.addConstraint(Sketcher.Constraint("Equal", 21, 23))
sketch6.addConstraint(Sketcher.Constraint("Equal", 23, 25))
sketch6.addConstraint(Sketcher.Constraint("Equal", 27, 29))
sketch6.addConstraint(Sketcher.Constraint("Equal", 29, 31))
sketch6.addConstraint(Sketcher.Constraint("Equal", 31, 33))
sketch6.addConstraint(Sketcher.Constraint("Equal", 33, 35))
sketch6.addConstraint(Sketcher.Constraint("Equal", 35, 37))
sketch6.addConstraint(Sketcher.Constraint("Equal", 39, 41))
sketch6.addConstraint(Sketcher.Constraint("Equal", 41, 43))
sketch6.addConstraint(Sketcher.Constraint("Equal", 43, 45))
sketch6.addConstraint(Sketcher.Constraint("Equal", 45, 47))
sketch6.addConstraint(Sketcher.Constraint("Symmetric", 1, 3, 25, 3, -1, 1))
sketch6.addConstraint(Sketcher.Constraint("Symmetric", 5, 3, 29, 3, -1, 1))
sketch6.addConstraint(Sketcher.Constraint("Symmetric", 7, 3, 31, 3, -1, 1))
sketch6.addConstraint(Sketcher.Constraint("Symmetric", 9, 3, 33, 3, -1, 1))
sketch6.addConstraint(Sketcher.Constraint("Symmetric", 11, 3, 35, 3, -1, 1))
sketch6.addConstraint(Sketcher.Constraint("Symmetric", 13, 3, 37, 3, -1, 1))
sketch6.addConstraint(Sketcher.Constraint("Symmetric", 17, 3, 41, 3, -1, 1))
sketch6.addConstraint(Sketcher.Constraint("Symmetric", 19, 3, 43, 3, -1, 1))
sketch6.addConstraint(Sketcher.Constraint("Symmetric", 21, 3, 45, 3, -1, 1))
sketch6.addConstraint(Sketcher.Constraint("Symmetric", 23, 3, 47, 3, -1, 1))
sketch6.addConstraint(Sketcher.Constraint("Symmetric", 21, 3, 29, 3, -2))
sketch6.addConstraint(Sketcher.Constraint("Symmetric", 23, 3, 31, 3, -2))
sketch6.addConstraint(Sketcher.Constraint("Symmetric", 17, 3, 33, 3, -2))
sketch6.addConstraint(Sketcher.Constraint("Symmetric", 19, 3, 35, 3, -2))
sketch6.addConstraint(Sketcher.Constraint("Symmetric", 15, 3, 39, 3, -2))
sketch6.addConstraint(Sketcher.Constraint("Symmetric", 3, 3, 27, 3, -1))
sketch6.addConstraint(Sketcher.Constraint("Perpendicular", 6, 16))
sketch6.addConstraint(Sketcher.Constraint("Equal", 38, 0))
sketch6.addConstraint(Sketcher.Constraint("Equal", 6, 8))
sketch6.addConstraint(Sketcher.Constraint("Radius", 1, Q("1.5 mm")))
sketch6.addConstraint(Sketcher.Constraint("Angle", 4, Q("120 deg")))
sketch6.addConstraint(Sketcher.Constraint("DistanceY", 1, 3, -1, 1, Q("135 mm")))
sketch6.addConstraint(Sketcher.Constraint("DistanceX", -1, 1, 13, 3, Q("135 mm")))
sketch6.addConstraint(Sketcher.Constraint("DistanceX", -1, 1, 5, 3, Q("67.5 mm")))
sketch6.addConstraint(Sketcher.Constraint("DistanceY", 9, 3, -1, 1, Q("67.5 mm")))
sketch6.addConstraint(Sketcher.Constraint("DistanceX", 12, 2, 12, 1, Q("17.035768 mm")))
sketch6.addConstraint(Sketcher.Constraint("DistanceY", 5, 3, -1, 1, Q("116.91343 mm")))
sketch6.addConstraint(Sketcher.Constraint("DistanceX", -1, 1, 9, 3, Q("116.91343 mm")))
sketch6.addConstraint(Sketcher.Constraint("DistanceX", -1, 1, 6, 2, Q("77.316922 mm")))
pocket4 = body.newObject("PartDesign::Pocket", "Pocket003")
pocket4.Profile = sketch6
pocket4.Type = "ThroughAll"
pocket4.Reversed = True

sketch7 = body.newObject("Sketcher::SketchObject", "Sketch006")
sketch7.AttachmentSupport = (doc.getObject("XY_Plane"), [""])
sketch7.MapMode = "FlatFace"
sketch7.AttachmentOffset = App.Placement(App.Vector(0, 0, 18), App.Rotation())
sketch7.addGeometry(Part.Circle(App.Vector(0, 0, 0), App.Vector(0, 0, 1), 135), False)
sketch7.addConstraint(Sketcher.Constraint("Coincident", 0, 3, -1, 1))
sketch7.addConstraint(Sketcher.Constraint("Diameter", 0, Q("270 mm")))
pocket5 = body.newObject("PartDesign::Pocket", "Pocket004")
pocket5.Profile = sketch7
pocket5.Length = 4

sketch8 = body.newObject("Sketcher::SketchObject", "Sketch007")
sketch8.AttachmentSupport = (doc.getObject("XY_Plane"), [""])
sketch8.MapMode = "FlatFace"
sketch8.addGeometry(Part.Circle(App.Vector(0, 0, 0), App.Vector(0, 0, 1), 32), False)
sketch8.addConstraint(Sketcher.Constraint("Coincident", 0, 3, -1, 1))
sketch8.addConstraint(Sketcher.Constraint("Diameter", 0, Q("64 mm")))
pad2 = body.newObject("PartDesign::Pad", "Pad001")
pad2.Profile = sketch8
pad2.Length = 10
pad2.Reversed = True
doc.recompute()

fillet = body.newObject("PartDesign::Fillet", "Fillet")
fillet.Base = (pad2, edges_at(pad2, [(-32, 0, 0)]))
fillet.Radius = 6

sketch9 = body.newObject("Sketcher::SketchObject", "Sketch008")
sketch9.AttachmentSupport = (doc.getObject("XY_Plane"), [""])
sketch9.MapMode = "FlatFace"
sketch9.AttachmentOffset = App.Placement(App.Vector(0, 0, -10), App.Rotation())
sketch9.addGeometry(Part.Circle(App.Vector(0, 0, 0), App.Vector(0, 0, 1), 27), False)
sketch9.addConstraint(Sketcher.Constraint("Coincident", 0, 3, -1, 1))
sketch9.addConstraint(Sketcher.Constraint("Diameter", 0, Q("54 mm")))
pad3 = body.newObject("PartDesign::Pad", "Pad002")
pad3.Profile = sketch9
pad3.Length = 98
pad3.Reversed = True

sketch10 = body.newObject("Sketcher::SketchObject", "Sketch009")
sketch10.AttachmentSupport = (doc.getObject("XY_Plane"), [""])
sketch10.MapMode = "FlatFace"
sketch10.AttachmentOffset = App.Placement(App.Vector(0, 0, -108), App.Rotation())
sketch10.addGeometry(Part.Circle(App.Vector(0, 0, 0), App.Vector(0, 0, 1), 21), False)
sketch10.addConstraint(Sketcher.Constraint("Coincident", 0, 3, -1, 1))
sketch10.addConstraint(Sketcher.Constraint("Diameter", 0, Q("42 mm")))
pad4 = body.newObject("PartDesign::Pad", "Pad003")
pad4.Profile = sketch10
pad4.Length = 32

sketch11 = body.newObject("Sketcher::SketchObject", "Sketch010")
sketch11.AttachmentSupport = (doc.getObject("XY_Plane"), [""])
sketch11.MapMode = "FlatFace"
sketch11.AttachmentOffset = App.Placement(App.Vector(0, 0, -108), App.Rotation())
sketch11.addGeometry(Part.Circle(App.Vector(0, 0, 0), App.Vector(0, 0, 1), 17), False)
sketch11.addConstraint(Sketcher.Constraint("Coincident", 0, 3, -1, 1))
sketch11.addConstraint(Sketcher.Constraint("Diameter", 0, Q("34 mm")))
pocket6 = body.newObject("PartDesign::Pocket", "Pocket005")
pocket6.Profile = sketch11
pocket6.Length = 128
pocket6.Reversed = True

doc.recompute()
